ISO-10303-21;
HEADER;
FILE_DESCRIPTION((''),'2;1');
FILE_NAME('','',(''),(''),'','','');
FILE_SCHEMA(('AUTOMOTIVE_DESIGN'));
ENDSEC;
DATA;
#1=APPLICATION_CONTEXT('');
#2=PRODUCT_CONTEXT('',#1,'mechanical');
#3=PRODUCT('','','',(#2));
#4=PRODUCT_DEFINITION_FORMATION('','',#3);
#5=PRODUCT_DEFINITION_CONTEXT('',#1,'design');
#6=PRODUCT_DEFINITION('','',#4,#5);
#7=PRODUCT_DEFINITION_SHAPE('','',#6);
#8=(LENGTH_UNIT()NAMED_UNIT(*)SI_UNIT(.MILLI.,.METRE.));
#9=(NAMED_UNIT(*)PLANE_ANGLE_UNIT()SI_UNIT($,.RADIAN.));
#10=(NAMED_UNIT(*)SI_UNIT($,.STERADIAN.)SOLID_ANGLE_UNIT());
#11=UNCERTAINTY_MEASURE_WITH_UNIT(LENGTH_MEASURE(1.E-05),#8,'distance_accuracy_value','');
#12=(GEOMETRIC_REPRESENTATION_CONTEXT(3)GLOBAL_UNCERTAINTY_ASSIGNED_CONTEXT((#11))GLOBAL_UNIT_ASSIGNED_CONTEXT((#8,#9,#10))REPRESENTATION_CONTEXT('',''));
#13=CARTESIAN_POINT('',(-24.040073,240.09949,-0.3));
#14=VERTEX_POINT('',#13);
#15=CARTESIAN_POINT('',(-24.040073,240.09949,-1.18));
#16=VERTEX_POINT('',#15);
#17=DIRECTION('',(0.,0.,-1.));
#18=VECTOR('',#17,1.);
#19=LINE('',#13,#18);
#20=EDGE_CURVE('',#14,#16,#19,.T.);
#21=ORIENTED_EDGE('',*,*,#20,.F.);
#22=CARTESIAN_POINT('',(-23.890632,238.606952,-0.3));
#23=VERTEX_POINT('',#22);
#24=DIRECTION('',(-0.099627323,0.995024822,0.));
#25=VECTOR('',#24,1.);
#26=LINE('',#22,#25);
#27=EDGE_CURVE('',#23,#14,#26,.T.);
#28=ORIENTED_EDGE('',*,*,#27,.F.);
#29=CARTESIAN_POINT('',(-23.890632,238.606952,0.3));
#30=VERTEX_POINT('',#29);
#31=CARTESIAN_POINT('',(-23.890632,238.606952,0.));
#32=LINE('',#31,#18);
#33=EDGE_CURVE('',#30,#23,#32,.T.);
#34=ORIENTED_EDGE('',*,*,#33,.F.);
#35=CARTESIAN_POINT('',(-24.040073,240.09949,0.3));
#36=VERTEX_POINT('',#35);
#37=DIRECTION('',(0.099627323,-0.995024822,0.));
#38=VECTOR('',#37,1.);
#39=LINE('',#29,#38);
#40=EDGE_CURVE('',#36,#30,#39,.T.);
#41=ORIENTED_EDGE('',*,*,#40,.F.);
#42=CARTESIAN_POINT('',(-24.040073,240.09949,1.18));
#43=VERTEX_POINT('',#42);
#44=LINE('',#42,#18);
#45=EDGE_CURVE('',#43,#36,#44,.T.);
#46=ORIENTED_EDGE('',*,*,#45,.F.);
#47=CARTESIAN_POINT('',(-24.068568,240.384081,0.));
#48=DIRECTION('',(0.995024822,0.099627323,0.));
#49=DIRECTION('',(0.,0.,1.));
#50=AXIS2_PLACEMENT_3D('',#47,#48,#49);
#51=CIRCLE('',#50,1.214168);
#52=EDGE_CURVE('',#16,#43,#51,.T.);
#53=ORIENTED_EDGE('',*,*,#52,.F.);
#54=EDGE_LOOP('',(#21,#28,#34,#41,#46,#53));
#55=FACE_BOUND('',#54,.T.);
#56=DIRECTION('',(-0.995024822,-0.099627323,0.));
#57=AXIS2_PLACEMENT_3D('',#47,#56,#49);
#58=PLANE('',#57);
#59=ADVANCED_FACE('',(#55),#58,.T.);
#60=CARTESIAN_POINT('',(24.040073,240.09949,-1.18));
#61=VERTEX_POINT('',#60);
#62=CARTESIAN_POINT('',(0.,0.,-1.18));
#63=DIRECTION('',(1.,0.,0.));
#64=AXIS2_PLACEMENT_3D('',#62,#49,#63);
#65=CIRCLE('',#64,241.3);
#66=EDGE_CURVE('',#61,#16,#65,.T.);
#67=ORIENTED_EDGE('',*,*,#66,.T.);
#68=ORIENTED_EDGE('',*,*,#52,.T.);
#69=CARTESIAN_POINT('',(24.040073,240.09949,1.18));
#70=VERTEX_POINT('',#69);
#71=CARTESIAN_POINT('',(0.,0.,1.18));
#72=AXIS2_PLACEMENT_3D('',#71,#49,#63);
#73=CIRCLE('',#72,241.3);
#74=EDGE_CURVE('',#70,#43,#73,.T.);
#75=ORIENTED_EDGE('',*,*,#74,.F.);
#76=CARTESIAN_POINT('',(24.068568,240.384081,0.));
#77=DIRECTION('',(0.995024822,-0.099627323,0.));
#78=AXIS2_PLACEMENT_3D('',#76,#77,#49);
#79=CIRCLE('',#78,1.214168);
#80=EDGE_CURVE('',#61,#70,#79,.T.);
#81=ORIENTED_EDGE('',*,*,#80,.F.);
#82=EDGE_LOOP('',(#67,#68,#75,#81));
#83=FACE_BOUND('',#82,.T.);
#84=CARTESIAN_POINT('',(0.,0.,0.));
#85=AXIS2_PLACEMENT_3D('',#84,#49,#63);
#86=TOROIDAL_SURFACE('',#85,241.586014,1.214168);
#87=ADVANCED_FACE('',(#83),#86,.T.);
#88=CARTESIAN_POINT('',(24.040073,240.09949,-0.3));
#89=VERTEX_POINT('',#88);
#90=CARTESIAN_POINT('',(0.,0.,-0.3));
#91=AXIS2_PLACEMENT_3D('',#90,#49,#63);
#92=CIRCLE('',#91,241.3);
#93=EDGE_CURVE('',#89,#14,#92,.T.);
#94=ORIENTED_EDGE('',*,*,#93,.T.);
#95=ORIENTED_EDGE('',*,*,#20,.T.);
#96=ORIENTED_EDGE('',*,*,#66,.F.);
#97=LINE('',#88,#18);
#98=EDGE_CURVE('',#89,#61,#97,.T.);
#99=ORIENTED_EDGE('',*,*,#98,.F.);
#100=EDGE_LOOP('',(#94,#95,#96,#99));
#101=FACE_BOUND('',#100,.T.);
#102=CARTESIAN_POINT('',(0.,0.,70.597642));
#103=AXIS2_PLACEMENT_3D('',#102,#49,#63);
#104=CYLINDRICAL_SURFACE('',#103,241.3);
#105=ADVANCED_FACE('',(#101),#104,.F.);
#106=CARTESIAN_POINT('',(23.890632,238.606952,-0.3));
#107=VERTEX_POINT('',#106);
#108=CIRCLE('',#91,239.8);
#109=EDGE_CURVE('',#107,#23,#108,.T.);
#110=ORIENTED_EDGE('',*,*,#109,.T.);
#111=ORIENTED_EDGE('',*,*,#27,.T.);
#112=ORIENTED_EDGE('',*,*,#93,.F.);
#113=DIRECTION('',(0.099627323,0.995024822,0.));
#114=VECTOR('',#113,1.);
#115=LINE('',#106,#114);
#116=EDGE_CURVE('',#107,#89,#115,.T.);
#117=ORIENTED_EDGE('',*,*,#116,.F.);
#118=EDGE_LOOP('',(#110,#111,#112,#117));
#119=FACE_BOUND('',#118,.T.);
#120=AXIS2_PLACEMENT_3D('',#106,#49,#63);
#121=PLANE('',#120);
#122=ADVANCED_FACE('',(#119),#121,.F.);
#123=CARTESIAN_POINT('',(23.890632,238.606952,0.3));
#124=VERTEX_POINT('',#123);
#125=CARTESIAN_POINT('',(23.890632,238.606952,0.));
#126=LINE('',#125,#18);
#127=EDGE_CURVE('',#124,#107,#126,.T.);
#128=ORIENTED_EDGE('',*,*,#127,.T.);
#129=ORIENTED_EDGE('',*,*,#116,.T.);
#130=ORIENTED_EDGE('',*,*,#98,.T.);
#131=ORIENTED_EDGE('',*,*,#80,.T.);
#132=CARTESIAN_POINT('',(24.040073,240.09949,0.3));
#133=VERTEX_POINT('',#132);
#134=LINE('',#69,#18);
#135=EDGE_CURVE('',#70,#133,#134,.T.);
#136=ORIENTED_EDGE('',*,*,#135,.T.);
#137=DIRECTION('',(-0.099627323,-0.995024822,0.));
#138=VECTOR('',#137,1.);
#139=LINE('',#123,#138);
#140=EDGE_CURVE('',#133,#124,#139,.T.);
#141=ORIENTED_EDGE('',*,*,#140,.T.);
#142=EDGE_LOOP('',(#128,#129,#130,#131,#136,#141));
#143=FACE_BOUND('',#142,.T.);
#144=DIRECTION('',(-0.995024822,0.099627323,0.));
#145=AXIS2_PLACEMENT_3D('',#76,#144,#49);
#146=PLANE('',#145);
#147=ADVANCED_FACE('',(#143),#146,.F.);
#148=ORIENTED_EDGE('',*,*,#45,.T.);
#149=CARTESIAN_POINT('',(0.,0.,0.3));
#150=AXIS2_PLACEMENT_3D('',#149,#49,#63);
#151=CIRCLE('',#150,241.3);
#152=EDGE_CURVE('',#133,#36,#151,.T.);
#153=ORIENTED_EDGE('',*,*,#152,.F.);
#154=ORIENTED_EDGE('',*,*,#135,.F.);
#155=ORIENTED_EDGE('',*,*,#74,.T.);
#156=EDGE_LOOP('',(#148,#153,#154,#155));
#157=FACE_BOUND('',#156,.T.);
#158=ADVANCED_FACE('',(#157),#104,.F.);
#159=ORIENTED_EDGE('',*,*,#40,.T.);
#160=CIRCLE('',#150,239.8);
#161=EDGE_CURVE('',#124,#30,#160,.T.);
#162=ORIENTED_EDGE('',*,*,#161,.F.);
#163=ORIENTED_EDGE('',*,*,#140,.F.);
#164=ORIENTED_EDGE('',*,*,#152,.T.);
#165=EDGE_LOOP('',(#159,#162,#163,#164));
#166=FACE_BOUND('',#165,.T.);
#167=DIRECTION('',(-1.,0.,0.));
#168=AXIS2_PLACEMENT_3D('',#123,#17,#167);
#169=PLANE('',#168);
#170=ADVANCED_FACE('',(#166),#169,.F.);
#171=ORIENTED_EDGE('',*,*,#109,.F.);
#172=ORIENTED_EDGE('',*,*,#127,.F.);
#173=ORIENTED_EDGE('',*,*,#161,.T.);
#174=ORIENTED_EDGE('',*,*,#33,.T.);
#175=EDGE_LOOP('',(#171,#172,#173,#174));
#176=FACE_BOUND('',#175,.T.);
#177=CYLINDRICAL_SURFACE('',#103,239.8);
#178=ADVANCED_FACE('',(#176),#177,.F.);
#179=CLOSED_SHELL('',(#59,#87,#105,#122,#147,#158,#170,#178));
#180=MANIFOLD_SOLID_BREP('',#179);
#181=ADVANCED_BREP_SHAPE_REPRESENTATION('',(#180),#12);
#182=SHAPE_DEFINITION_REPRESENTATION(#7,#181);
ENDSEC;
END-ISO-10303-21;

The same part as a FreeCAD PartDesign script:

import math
import FreeCAD as App
import Part
import Sketcher
from FreeCAD import Vector
Q = App.Units.Quantity

doc = App.newDocument("Part")
body = doc.addObject("PartDesign::Body", "Body")

# Sketch on YZ plane
sketch1 = doc.addObject("Sketcher::SketchObject", "Sketch")
body.addObject(sketch1)
sketch1.AttachmentSupport = (doc.YZ_Plane, [""])
sketch1.MapMode = "FlatFace"
sketch1.addGeometry([
    Part.LineSegment(Vector(239.8, -0.3, 0), Vector(241.3, -0.3, 0)),  # 0
    Part.LineSegment(Vector(241.3, -0.3, 0), Vector(241.3, -1.18, 0)),  # 1
    Part.ArcOfCircle(Part.Circle(Vector(241.586014, 0, 0), Vector(0, 0, 1), 1.214168), math.radians(-103.624857), math.radians(103.624857)),  # 2
    Part.LineSegment(Vector(241.3, 1.18, 0), Vector(241.3, 0.3, 0)),  # 3
    Part.LineSegment(Vector(241.3, 0.3, 0), Vector(239.8, 0.3, 0)),  # 4
    Part.LineSegment(Vector(239.8, 0.3, 0), Vector(239.8, -0.3, 0)),  # 5
], False)
sketch1.addConstraint([
    Sketcher.Constraint("Coincident", 0, 2, 1, 1),
    Sketcher.Constraint("Coincident", 1, 2, 2, 1),
    Sketcher.Constraint("Coincident", 2, 2, 3, 1),
    Sketcher.Constraint("Coincident", 3, 2, 4, 1),
    Sketcher.Constraint("Coincident", 4, 2, 5, 1),
    Sketcher.Constraint("Coincident", 5, 2, 0, 1),
    Sketcher.Constraint("Horizontal", 0),
    Sketcher.Constraint("Vertical", 1),
    Sketcher.Constraint("Vertical", 3),
    Sketcher.Constraint("Horizontal", 4),
    Sketcher.Constraint("Vertical", 5),
    Sketcher.Constraint("Symmetric", 1, 2, 2, 2, -1),
    Sketcher.Constraint("Equal", 1, 3),
    Sketcher.Constraint("DistanceX", 0, 1, 0, 2, Q("1.5 mm")),
    Sketcher.Constraint("DistanceY", 5, 2, 5, 1, Q("0.6 mm")),
    Sketcher.Constraint("DistanceY", 1, 2, 1, 1, Q("0.88 mm")),
    Sketcher.Constraint("DistanceX", -1, 1, 0, 2, Q("241.3 mm")),
    Sketcher.Constraint("Radius", 2, Q("1.214168 mm")),
])
revolution = doc.addObject("PartDesign::Revolution", "Revolution")
body.addObject(revolution)
revolution.Profile = sketch1
revolution.ReferenceAxis = (sketch1, ["V_Axis"])
revolution.Angle = 5.71771
revolution.Reversed = True

# Sketch on YZ plane
sketch2 = doc.addObject("Sketcher::SketchObject", "Sketch001")
body.addObject(sketch2)
sketch2.AttachmentSupport = (doc.YZ_Plane, [""])
sketch2.MapMode = "FlatFace"
sketch2.addGeometry([
    Part.LineSegment(Vector(239.8, -0.3, 0), Vector(241.3, -0.3, 0)),  # 0
    Part.LineSegment(Vector(241.3, -0.3, 0), Vector(241.3, -1.18, 0)),  # 1
    Part.ArcOfCircle(Part.Circle(Vector(241.586014, 0, 0), Vector(0, 0, 1), 1.214168), math.radians(-103.624857), math.radians(103.624857)),  # 2
    Part.LineSegment(Vector(241.3, 1.18, 0), Vector(241.3, 0.3, 0)),  # 3
    Part.LineSegment(Vector(241.3, 0.3, 0), Vector(239.8, 0.3, 0)),  # 4
    Part.LineSegment(Vector(239.8, 0.3, 0), Vector(239.8, -0.3, 0)),  # 5
], False)
sketch2.addConstraint([
    Sketcher.Constraint("Coincident", 0, 2, 1, 1),
    Sketcher.Constraint("Coincident", 1, 2, 2, 1),
    Sketcher.Constraint("Coincident", 2, 2, 3, 1),
    Sketcher.Constraint("Coincident", 3, 2, 4, 1),
    Sketcher.Constraint("Coincident", 4, 2, 5, 1),
    Sketcher.Constraint("Coincident", 5, 2, 0, 1),
    Sketcher.Constraint("Horizontal", 0),
    Sketcher.Constraint("Vertical", 1),
    Sketcher.Constraint("Vertical", 3),
    Sketcher.Constraint("Horizontal", 4),
    Sketcher.Constraint("Vertical", 5),
    Sketcher.Constraint("Symmetric", 1, 2, 2, 2, -1),
    Sketcher.Constraint("Equal", 1, 3),
    Sketcher.Constraint("DistanceX", 0, 1, 0, 2, Q("1.5 mm")),
    Sketcher.Constraint("DistanceY", 5, 2, 5, 1, Q("0.6 mm")),
    Sketcher.Constraint("DistanceY", 1, 2, 1, 1, Q("0.88 mm")),
    Sketcher.Constraint("DistanceX", -1, 1, 0, 2, Q("241.3 mm")),
    Sketcher.Constraint("Radius", 2, Q("1.214168 mm")),
])
revolution2 = doc.addObject("PartDesign::Revolution", "Revolution001")
body.addObject(revolution2)
revolution2.Profile = sketch2
revolution2.ReferenceAxis = (sketch2, ["V_Axis"])
revolution2.Angle = 5.71771

doc.recompute()
